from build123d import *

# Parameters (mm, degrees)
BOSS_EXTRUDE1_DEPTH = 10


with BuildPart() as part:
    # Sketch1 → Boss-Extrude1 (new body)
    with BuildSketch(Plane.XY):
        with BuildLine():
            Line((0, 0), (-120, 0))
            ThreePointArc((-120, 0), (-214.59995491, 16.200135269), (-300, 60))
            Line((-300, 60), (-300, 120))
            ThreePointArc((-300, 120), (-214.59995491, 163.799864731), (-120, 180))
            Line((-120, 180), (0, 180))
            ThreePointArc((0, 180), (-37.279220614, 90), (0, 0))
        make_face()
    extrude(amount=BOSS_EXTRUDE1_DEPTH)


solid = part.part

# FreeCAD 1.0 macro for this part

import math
import FreeCAD as App
import Part
import Sketcher
from FreeCAD import Vector
Q = App.Units.Quantity

doc = App.newDocument("Part")
body = doc.addObject("PartDesign::Body", "Body")

# Sketch on XY plane
sketch1 = body.newObject("Sketcher::SketchObject", "Sketch")
sketch1.AttachmentSupport = (doc.getObject("XY_Plane"), [""])
sketch1.MapMode = "FlatFace"
sketch1.addGeometry(Part.LineSegment(Vector(-120, 0, 0), Vector(0, 0, 0)), False)
sketch1.addGeometry(Part.ArcOfCircle(Part.Circle(Vector(90, 90, 0), Vector(0, 0, 1), 127), math.radians(135), math.radians(225)), False)
sketch1.addGeometry(Part.LineSegment(Vector(0, 180, 0), Vector(-120, 180, 0)), False)
sketch1.addGeometry(Part.ArcOfCircle(Part.Circle(Vector(-114, -137, 0), Vector(0, 0, 1), 317), math.radians(91), math.radians(126)), False)
sketch1.addGeometry(Part.LineSegment(Vector(-300, 120, 0), Vector(-300, 60, 0)), False)
sketch1.addGeometry(Part.ArcOfCircle(Part.Circle(Vector(-114, 317, 0), Vector(0, 0, 1), 317), math.radians(-126), math.radians(-91)), False)
sketch1.addConstraint(Sketcher.Constraint("Coincident", 0, 2, 1, 2))
sketch1.addConstraint(Sketcher.Constraint("Coincident", 1, 1, 2, 1))
sketch1.addConstraint(Sketcher.Constraint("Coincident", 2, 2, 3, 1))
sketch1.addConstraint(Sketcher.Constraint("Coincident", 3, 2, 4, 1))
sketch1.addConstraint(Sketcher.Constraint("Coincident", 4, 2, 5, 1))
sketch1.addConstraint(Sketcher.Constraint("Coincident", 5, 2, 0, 1))
sketch1.addConstraint(Sketcher.Constraint("Horizontal", 0))
sketch1.addConstraint(Sketcher.Constraint("Horizontal", 2))
sketch1.addConstraint(Sketcher.Constraint("Vertical", 4))
sketch1.addConstraint(Sketcher.Constraint("Coincident", 0, 2, -1, 1))
sketch1.addConstraint(Sketcher.Constraint("Equal", 3, 5))
sketch1.addConstraint(Sketcher.Constraint("PointOnObject", 1, 1, -2))
sketch1.addConstraint(Sketcher.Constraint("Vertical", 3, 3, 5, 3))
sketch1.addConstraint(Sketcher.Constraint("Vertical", 2, 2, 5, 2))
sketch1.addConstraint(Sketcher.Constraint("DistanceX", 0, 1, 0, 2, Q("120 mm")))
sketch1.addConstraint(Sketcher.Constraint("DistanceY", 4, 2, 4, 1, Q("60 mm")))
sketch1.addConstraint(Sketcher.Constraint("DistanceX", -1, 1, 1, 3, Q("90 mm")))
sketch1.addConstraint(Sketcher.Constraint("DistanceY", -1, 1, 1, 3, Q("90 mm")))
sketch1.addConstraint(Sketcher.Constraint("DistanceX", 4, 2, -1, 1, Q("300 mm")))
sketch1.addConstraint(Sketcher.Constraint("Radius", 3, Q("316.629449 mm")))
pad1 = body.newObject("PartDesign::Pad", "Pad")
pad1.Profile = sketch1
pad1.Length = 10

doc.recompute()
